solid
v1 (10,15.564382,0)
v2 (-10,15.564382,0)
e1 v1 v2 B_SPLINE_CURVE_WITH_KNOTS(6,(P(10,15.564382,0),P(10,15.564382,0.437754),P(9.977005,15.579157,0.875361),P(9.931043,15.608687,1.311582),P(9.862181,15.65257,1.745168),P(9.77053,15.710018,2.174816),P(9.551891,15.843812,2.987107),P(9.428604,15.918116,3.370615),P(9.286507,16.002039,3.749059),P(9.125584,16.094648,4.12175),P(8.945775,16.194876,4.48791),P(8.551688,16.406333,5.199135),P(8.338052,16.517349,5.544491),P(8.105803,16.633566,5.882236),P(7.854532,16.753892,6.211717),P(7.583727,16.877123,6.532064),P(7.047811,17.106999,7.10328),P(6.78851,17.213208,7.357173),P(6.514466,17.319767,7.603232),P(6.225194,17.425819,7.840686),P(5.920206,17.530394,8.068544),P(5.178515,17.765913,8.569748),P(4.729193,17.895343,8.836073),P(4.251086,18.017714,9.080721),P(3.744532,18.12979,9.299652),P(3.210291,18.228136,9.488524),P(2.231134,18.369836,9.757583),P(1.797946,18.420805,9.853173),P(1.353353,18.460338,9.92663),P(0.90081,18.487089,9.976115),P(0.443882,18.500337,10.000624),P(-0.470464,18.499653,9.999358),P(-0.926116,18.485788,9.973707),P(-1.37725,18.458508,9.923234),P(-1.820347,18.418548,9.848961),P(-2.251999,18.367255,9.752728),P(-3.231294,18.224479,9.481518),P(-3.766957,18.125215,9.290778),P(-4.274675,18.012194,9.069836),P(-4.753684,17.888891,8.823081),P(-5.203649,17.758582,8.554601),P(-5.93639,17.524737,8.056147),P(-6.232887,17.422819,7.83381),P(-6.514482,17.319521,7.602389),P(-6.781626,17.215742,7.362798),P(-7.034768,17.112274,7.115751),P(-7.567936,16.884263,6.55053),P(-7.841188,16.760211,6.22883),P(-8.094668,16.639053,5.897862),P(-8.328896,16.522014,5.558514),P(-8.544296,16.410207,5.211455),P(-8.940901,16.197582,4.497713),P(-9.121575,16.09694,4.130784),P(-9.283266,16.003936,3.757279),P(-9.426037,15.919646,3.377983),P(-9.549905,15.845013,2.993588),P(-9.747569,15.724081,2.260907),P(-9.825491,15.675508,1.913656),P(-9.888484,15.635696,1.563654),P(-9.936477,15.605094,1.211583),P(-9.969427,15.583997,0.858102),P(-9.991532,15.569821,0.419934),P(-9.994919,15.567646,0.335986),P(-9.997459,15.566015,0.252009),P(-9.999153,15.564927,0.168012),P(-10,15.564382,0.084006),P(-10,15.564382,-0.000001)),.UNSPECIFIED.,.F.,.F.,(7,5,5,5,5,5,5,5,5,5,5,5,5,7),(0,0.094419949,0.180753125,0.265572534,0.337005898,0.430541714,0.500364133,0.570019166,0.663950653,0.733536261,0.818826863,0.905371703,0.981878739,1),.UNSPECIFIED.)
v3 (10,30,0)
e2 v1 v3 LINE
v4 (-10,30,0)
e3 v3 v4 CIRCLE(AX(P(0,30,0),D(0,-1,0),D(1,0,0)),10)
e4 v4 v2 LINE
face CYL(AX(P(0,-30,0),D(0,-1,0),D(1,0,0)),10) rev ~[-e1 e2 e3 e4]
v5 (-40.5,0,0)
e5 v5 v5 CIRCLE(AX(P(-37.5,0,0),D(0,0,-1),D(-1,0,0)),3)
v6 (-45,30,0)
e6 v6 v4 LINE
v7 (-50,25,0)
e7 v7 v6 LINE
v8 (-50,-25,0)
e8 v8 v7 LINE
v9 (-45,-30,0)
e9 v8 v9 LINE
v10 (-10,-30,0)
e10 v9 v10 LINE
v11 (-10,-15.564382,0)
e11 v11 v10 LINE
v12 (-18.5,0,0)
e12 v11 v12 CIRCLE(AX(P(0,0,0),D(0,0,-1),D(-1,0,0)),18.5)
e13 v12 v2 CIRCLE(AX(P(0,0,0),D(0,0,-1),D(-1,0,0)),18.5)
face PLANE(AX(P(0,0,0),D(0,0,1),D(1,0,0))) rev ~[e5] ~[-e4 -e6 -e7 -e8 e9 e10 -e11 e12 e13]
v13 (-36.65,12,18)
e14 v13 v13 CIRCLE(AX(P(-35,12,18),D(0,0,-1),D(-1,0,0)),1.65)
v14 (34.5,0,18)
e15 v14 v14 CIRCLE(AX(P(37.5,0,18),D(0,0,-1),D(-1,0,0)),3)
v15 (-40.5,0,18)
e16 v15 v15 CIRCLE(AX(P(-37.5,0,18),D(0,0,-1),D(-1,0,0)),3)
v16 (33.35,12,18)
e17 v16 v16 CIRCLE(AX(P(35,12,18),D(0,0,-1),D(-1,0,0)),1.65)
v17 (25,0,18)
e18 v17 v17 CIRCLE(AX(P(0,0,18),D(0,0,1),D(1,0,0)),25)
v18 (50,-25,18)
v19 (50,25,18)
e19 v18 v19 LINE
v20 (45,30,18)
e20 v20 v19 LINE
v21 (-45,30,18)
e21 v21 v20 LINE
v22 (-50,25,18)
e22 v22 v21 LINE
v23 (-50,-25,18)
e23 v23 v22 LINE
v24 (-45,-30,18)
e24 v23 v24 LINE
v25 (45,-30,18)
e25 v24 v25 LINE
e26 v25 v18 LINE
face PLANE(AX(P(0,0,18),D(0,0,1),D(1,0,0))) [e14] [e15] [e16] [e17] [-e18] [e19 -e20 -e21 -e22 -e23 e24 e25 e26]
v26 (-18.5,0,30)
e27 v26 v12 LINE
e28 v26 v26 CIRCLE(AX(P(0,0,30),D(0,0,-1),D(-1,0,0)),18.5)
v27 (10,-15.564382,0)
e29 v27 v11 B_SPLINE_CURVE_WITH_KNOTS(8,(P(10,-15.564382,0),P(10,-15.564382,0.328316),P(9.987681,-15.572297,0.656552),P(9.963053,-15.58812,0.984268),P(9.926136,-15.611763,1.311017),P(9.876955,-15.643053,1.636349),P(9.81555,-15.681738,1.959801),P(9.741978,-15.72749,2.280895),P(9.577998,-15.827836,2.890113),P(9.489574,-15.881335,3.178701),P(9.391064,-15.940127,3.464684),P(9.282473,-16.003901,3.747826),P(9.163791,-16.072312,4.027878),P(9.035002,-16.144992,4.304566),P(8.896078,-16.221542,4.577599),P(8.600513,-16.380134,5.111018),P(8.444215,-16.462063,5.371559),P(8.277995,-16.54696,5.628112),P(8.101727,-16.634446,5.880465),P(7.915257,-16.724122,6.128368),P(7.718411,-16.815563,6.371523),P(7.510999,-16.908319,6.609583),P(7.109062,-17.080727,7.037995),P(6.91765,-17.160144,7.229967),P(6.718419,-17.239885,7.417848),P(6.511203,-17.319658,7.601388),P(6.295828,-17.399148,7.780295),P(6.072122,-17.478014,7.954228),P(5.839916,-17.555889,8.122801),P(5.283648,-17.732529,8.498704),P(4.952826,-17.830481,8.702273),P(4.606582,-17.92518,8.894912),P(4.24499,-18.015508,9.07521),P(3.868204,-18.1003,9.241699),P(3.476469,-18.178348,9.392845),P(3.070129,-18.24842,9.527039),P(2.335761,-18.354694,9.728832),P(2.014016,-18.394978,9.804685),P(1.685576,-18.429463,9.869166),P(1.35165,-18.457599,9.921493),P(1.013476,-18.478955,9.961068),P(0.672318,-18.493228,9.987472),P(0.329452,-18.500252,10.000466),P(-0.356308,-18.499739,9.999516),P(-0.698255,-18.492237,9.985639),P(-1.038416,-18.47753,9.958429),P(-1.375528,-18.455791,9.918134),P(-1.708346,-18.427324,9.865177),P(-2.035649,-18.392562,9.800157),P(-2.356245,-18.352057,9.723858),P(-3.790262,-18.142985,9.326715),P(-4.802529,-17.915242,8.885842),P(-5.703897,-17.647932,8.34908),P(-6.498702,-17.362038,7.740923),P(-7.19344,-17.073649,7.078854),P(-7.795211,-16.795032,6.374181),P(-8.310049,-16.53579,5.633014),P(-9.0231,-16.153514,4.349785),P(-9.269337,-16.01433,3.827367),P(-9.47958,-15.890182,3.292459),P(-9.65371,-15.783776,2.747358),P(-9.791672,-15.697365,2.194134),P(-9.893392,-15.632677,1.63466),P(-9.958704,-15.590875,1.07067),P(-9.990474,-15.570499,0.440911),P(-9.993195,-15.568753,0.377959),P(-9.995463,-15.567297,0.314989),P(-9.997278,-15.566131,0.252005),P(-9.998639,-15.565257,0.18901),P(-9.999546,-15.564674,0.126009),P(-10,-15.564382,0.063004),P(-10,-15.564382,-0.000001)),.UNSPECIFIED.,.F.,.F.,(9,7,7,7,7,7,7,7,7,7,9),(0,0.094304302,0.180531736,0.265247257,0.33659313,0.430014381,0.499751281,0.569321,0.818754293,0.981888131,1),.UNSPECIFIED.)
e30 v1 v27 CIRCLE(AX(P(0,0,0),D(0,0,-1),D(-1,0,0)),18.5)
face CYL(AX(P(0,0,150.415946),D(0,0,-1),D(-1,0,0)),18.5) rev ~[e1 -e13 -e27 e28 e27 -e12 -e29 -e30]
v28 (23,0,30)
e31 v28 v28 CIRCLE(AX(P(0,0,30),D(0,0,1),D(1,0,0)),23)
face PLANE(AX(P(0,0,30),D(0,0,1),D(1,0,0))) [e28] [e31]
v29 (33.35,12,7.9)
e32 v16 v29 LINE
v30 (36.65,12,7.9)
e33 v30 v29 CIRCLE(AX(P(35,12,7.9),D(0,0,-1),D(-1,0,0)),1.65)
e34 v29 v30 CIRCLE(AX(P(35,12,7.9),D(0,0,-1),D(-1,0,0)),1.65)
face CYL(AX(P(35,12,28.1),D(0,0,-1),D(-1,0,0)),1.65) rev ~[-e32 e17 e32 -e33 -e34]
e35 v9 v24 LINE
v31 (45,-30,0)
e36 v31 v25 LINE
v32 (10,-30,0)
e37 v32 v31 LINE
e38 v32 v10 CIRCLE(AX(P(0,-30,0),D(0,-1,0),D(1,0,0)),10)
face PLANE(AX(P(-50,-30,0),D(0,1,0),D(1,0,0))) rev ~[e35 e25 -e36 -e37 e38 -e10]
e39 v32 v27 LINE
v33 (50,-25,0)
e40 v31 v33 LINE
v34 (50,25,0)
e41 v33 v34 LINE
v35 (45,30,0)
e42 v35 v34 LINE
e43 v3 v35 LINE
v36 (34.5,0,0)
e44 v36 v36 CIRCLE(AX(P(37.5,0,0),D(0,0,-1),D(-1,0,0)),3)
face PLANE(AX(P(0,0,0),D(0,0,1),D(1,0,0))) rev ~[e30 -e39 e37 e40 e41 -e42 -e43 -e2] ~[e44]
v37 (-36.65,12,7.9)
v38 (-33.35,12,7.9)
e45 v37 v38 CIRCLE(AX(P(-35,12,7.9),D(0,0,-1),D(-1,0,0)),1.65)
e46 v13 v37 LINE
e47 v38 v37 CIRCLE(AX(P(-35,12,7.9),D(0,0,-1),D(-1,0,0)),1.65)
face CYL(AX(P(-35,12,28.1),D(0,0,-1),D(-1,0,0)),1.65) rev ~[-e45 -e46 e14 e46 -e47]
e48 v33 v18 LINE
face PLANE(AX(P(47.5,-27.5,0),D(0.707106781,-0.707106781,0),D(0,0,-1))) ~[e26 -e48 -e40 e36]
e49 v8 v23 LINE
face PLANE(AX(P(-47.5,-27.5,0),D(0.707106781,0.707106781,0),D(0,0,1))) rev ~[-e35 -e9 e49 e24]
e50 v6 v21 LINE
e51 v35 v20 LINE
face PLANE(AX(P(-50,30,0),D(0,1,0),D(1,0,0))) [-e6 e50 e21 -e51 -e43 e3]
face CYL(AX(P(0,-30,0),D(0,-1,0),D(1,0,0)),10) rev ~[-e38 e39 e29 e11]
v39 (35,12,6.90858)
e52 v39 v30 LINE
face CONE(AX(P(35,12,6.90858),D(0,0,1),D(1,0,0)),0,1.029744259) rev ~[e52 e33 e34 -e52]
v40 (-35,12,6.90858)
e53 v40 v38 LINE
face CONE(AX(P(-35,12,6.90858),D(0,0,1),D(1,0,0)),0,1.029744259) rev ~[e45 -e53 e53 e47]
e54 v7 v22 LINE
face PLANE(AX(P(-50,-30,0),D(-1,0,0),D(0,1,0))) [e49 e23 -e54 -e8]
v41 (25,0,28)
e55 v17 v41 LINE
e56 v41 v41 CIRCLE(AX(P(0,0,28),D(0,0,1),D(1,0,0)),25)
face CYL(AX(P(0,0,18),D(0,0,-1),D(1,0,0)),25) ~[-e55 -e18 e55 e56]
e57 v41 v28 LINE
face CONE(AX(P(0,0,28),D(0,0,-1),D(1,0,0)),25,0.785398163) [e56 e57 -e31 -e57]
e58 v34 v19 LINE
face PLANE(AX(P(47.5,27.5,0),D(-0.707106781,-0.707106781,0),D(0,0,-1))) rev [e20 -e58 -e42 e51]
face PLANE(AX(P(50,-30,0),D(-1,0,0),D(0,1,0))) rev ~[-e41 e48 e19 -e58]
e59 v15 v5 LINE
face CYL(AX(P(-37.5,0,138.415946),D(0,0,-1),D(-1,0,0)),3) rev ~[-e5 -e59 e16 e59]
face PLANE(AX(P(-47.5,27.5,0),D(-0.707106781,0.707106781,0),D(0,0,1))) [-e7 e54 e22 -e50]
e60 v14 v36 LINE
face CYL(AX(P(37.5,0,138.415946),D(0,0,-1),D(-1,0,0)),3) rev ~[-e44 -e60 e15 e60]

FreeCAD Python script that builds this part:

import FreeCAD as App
import Part
import Sketcher

V = App.Vector


def edges_at(feature, points):
    """Names of the edges that pass closest to the given points."""
    edges = feature.Shape.Edges
    near = lambda p: min(range(len(edges)), key=lambda i: edges[i].distToShape(Part.Vertex(*p))[0])
    return sorted({f"Edge{near(p) + 1}" for p in points})

doc = App.newDocument("Part")
body = doc.addObject("PartDesign::Body", "Body")

sketch1 = doc.addObject("Sketcher::SketchObject", "Sketch")
body.addObject(sketch1)
sketch1.AttachmentSupport = (doc.XY_Plane, [""])
sketch1.MapMode = "FlatFace"
sketch1.addGeometry(Part.LineSegment(V(-50, 30, 0), V(-50, -30, 0)), False)
sketch1.addGeometry(Part.LineSegment(V(-50, -30, 0), V(50, -30, 0)), False)
sketch1.addGeometry(Part.LineSegment(V(50, -30, 0), V(50, 30, 0)), False)
sketch1.addGeometry(Part.LineSegment(V(50, 30, 0), V(-50, 30, 0)), False)
sketch1.addConstraint(Sketcher.Constraint("Coincident", 0, 2, 1, 1))
sketch1.addConstraint(Sketcher.Constraint("Coincident", 1, 2, 2, 1))
sketch1.addConstraint(Sketcher.Constraint("Coincident", 2, 2, 3, 1))
sketch1.addConstraint(Sketcher.Constraint("Coincident", 3, 2, 0, 1))
sketch1.addConstraint(Sketcher.Constraint("Vertical", 0))
sketch1.addConstraint(Sketcher.Constraint("Horizontal", 1))
sketch1.addConstraint(Sketcher.Constraint("Vertical", 2))
sketch1.addConstraint(Sketcher.Constraint("Horizontal", 3))
sketch1.addConstraint(Sketcher.Constraint("Symmetric", 0, 2, 2, 2, -1, 1))
sketch1.addConstraint(Sketcher.Constraint("DistanceX", 1, 1, 1, 2, 100.0))
sketch1.addConstraint(Sketcher.Constraint("DistanceY", 0, 2, 0, 1, 60.0))
pad1 = doc.addObject("PartDesign::Pad", "Pad")
body.addObject(pad1)
pad1.Profile = sketch1
pad1.Length = 18

sketch2 = doc.addObject("Sketcher::SketchObject", "Sketch001")
body.addObject(sketch2)
sketch2.AttachmentSupport = (doc.XY_Plane, [""])
sketch2.MapMode = "FlatFace"
sketch2.AttachmentOffset = App.Placement(V(0, 0, 18), App.Rotation())
sketch2.addGeometry(Part.Circle(V(0, 0, 0), V(0, 0, 1), 25), False)
sketch2.addConstraint(Sketcher.Constraint("Coincident", 0, 3, -1, 1))
sketch2.addConstraint(Sketcher.Constraint("Diameter", 0, 50.0))
pad2 = doc.addObject("PartDesign::Pad", "Pad001")
body.addObject(pad2)
pad2.Profile = sketch2
pad2.Length = 12
doc.recompute()

chamfer = doc.addObject("PartDesign::Chamfer", "Chamfer")
body.addObject(chamfer)
chamfer.Base = (pad2, edges_at(pad2, [
    (50, -30, 9),
    (-50, -30, 9),
    (-50, 30, 9),
    (50, 30, 9),
]))
chamfer.Size = 5
doc.recompute()

chamfer2 = doc.addObject("PartDesign::Chamfer", "Chamfer001")
body.addObject(chamfer2)
chamfer2.Base = (chamfer, edges_at(chamfer, [(-25, 0, 30)]))
chamfer2.Size = 2

sketch3 = doc.addObject("Sketcher::SketchObject", "Sketch002")
body.addObject(sketch3)
sketch3.AttachmentSupport = (doc.XY_Plane, [""])
sketch3.MapMode = "FlatFace"
sketch3.AttachmentOffset = App.Placement(V(0, 0, 30), App.Rotation())
sketch3.addGeometry(Part.Circle(V(0, 0, 0), V(0, 0, 1), 18), False)
sketch3.addConstraint(Sketcher.Constraint("Coincident", 0, 3, -1, 1))
sketch3.addConstraint(Sketcher.Constraint("Diameter", 0, 37.0))
doc.recompute()
hole = doc.addObject("PartDesign::Hole", "Hole")
body.addObject(hole)
hole.Profile = sketch3
hole.ThreadType = "None"
hole.Diameter = 37
hole.DepthType = "ThroughAll"

sketch4 = doc.addObject("Sketcher::SketchObject", "Sketch003")
body.addObject(sketch4)
sketch4.AttachmentSupport = (doc.XZ_Plane, [""])
sketch4.MapMode = "FlatFace"
sketch4.AttachmentOffset = App.Placement(V(0, 0, 30), App.Rotation())
sketch4.addGeometry(Part.Circle(V(0, 0, 0), V(0, 0, 1), 10), False)
sketch4.addConstraint(Sketcher.Constraint("Coincident", 0, 3, -1, 1))
sketch4.addConstraint(Sketcher.Constraint("Diameter", 0, 20.0))
pocket1 = doc.addObject("PartDesign::Pocket", "Pocket")
body.addObject(pocket1)
pocket1.Profile = sketch4
pocket1.Type = "ThroughAll"

sketch5 = doc.addObject("Sketcher::SketchObject", "Sketch004")
body.addObject(sketch5)
sketch5.AttachmentSupport = (doc.XY_Plane, [""])
sketch5.MapMode = "FlatFace"
sketch5.AttachmentOffset = App.Placement(V(0, 0, 18), App.Rotation())
sketch5.addGeometry(Part.Circle(V(37.5, 0, 0), V(0, 0, 1), 3), False)
sketch5.addGeometry(Part.Circle(V(-37.5, 0, 0), V(0, 0, 1), 3), False)
sketch5.addConstraint(Sketcher.Constraint("Equal", 0, 1))
sketch5.addConstraint(Sketcher.Constraint("Symmetric", 0, 3, 1, 3, -1, 1))
sketch5.addConstraint(Sketcher.Constraint("PointOnObject", 0, 3, -1))
sketch5.addConstraint(Sketcher.Constraint("Diameter", 0, 6.0))
sketch5.addConstraint(Sketcher.Constraint("DistanceX", 1, 3, 0, 3, 75.0))
doc.recompute()
hole2 = doc.addObject("PartDesign::Hole", "Hole001")
body.addObject(hole2)
hole2.Profile = sketch5
hole2.ThreadType = "None"
hole2.Diameter = 6
hole2.DepthType = "ThroughAll"

sketch6 = doc.addObject("Sketcher::SketchObject", "Sketch005")
body.addObject(sketch6)
sketch6.AttachmentSupport = (doc.XY_Plane, [""])
sketch6.MapMode = "FlatFace"
sketch6.AttachmentOffset = App.Placement(V(0, 0, 18), App.Rotation())
sketch6.addGeometry(Part.Circle(V(35, 12, 0), V(0, 0, 1), 1.6), False)
sketch6.addGeometry(Part.Circle(V(-35, 12, 0), V(0, 0, 1), 1.6), False)
sketch6.addConstraint(Sketcher.Constraint("Equal", 0, 1))
sketch6.addConstraint(Sketcher.Constraint("Symmetric", 0, 3, 1, 3, -2))
sketch6.addConstraint(Sketcher.Constraint("Diameter", 0, 3.3))
sketch6.addConstraint(Sketcher.Constraint("DistanceX", -1, 1, 0, 3, 35.0))
sketch6.addConstraint(Sketcher.Constraint("DistanceY", -1, 1, 0, 3, 12.0))
doc.recompute()
hole3 = doc.addObject("PartDesign::Hole", "Hole002")
body.addObject(hole3)
hole3.Profile = sketch6
hole3.ThreadType = "None"
hole3.Diameter = 3.3
hole3.DepthType = "Dimension"
hole3.Depth = 10.1
hole3.DrillPoint = "Angled"
hole3.DrillPointAngle = 118

doc.recompute()
